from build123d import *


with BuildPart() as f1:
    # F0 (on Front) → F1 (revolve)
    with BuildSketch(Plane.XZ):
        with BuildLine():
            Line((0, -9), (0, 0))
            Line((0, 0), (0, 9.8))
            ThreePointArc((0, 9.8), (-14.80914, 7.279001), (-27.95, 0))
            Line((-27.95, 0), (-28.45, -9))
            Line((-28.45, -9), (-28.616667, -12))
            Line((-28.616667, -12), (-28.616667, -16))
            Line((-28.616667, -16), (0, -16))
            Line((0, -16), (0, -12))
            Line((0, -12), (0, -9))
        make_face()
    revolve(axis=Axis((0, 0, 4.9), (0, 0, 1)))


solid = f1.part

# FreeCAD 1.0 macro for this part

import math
import FreeCAD as App
import Part
import Sketcher

V = App.Vector
Q = App.Units.Quantity

doc = App.newDocument("Part")
body = doc.addObject("PartDesign::Body", "Body")

# Sketch on XZ plane
sketch1 = body.newObject("Sketcher::SketchObject", "Sketch")
sketch1.AttachmentSupport = (doc.getObject("XZ_Plane"), [""])
sketch1.MapMode = "FlatFace"
sketch1.addGeometry([
    Part.ArcOfCircle(Part.Circle(V(0, -35, 0), V(0, 0, 1), 44.8), math.radians(90), math.radians(129)),  # 0
    Part.LineSegment(V(-27.9, 0, 0), V(-28.4, -9, 0)),  # 1
    Part.LineSegment(V(-28.4, -9, 0), V(-28.6, -12, 0)),  # 2
    Part.LineSegment(V(-28.6, -12, 0), V(-28.6, -16, 0)),  # 3
    Part.LineSegment(V(-28.6, -16, 0), V(0, -16, 0)),  # 4
    Part.LineSegment(V(0, -16, 0), V(0, 9.8, 0)),  # 5
], False)
sketch1.addConstraint([
    Sketcher.Constraint("Coincident", 0, 2, 1, 1),
    Sketcher.Constraint("Coincident", 1, 2, 2, 1),
    Sketcher.Constraint("Coincident", 2, 2, 3, 1),
    Sketcher.Constraint("Coincident", 3, 2, 4, 1),
    Sketcher.Constraint("Coincident", 4, 2, 5, 1),
    Sketcher.Constraint("Coincident", 5, 2, 0, 1),
    Sketcher.Constraint("Vertical", 3),
    Sketcher.Constraint("Horizontal", 4),
    Sketcher.Constraint("Vertical", 5),
    Sketcher.Constraint("PointOnObject", 0, 3, -2),
    Sketcher.Constraint("PointOnObject", 0, 2, -1),
    Sketcher.Constraint("PointOnObject", 4, 2, -2),
    Sketcher.Constraint("Parallel", 1, 2),
    Sketcher.Constraint("DistanceY", 3, 2, 3, 1, Q("4 mm")),
    Sketcher.Constraint("DistanceY", 5, 1, 5, 2, Q("25.8 mm")),
    Sketcher.Constraint("DistanceY", 1, 2, -1, 1, Q("9 mm")),
    Sketcher.Constraint("DistanceY", 2, 2, -1, 1, Q("12 mm")),
    Sketcher.Constraint("DistanceX", 1, 2, 0, 2, Q("0.5 mm")),
    Sketcher.Constraint("DistanceX", 0, 2, -1, 1, Q("27.95 mm")),
])
revolution = body.newObject("PartDesign::Revolution", "Revolution")
revolution.Profile = sketch1
revolution.ReferenceAxis = (sketch1, ["V_Axis"])
revolution.Angle = 360

doc.recompute()
